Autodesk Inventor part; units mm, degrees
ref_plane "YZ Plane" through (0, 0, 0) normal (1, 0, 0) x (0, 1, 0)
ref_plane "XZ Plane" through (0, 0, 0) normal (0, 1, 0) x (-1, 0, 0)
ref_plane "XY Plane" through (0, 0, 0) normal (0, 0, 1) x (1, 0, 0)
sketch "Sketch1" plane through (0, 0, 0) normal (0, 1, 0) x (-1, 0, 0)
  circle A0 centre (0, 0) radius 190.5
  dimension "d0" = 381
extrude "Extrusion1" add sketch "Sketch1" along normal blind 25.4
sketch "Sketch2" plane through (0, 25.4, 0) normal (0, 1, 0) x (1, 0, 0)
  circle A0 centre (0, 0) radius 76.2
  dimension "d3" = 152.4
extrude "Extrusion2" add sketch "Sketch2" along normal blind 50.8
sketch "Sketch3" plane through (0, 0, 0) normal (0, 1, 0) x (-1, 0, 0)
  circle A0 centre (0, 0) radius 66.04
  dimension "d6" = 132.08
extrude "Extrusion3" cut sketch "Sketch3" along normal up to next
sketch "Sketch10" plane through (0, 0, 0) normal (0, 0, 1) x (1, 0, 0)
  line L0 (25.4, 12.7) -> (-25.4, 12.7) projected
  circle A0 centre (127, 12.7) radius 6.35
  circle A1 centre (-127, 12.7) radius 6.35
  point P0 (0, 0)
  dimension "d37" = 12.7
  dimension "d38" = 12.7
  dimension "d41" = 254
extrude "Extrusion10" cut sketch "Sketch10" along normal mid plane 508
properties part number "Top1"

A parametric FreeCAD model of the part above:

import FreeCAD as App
import Part
import Sketcher
Q = App.Units.Quantity

doc = App.newDocument("Part")
params = doc.addObject("Spreadsheet::Sheet", "Params")
for row, (alias, value) in enumerate([
    ("sketch1_diameter", "15 in"),
    ("pad1_length", "1 in"),
    ("sketch2_diameter", "6 in"),
    ("pad2_length", "2 in"),
    ("sketch3_diameter", "5.2 in"),
    ("sketch4_diameter", "0.5 in"),
    ("pocket2_length", "20 in"),
], start=1):
    params.set(f"A{row}", alias)
    params.set(f"B{row}", "=" + value)
    params.setAlias(f"B{row}", alias)

body = doc.addObject("PartDesign::Body", "Body")

# Sketch on XZ plane
sketch1 = body.newObject("Sketcher::SketchObject", "Sketch")
sketch1.AttachmentSupport = (doc.getObject("XZ_Plane"), [""])
sketch1.MapMode = "FlatFace"
sketch1.addGeometry(Part.Circle(App.Vector(0, 0, 0), App.Vector(0, 0, 1), 190), False)
sketch1.addConstraint([
    Sketcher.Constraint("Coincident", 0, 3, -1, 1),
    Sketcher.Constraint("Diameter", 0, Q("15 in")),
])
sketch1.setExpression("Constraints[1]", "Params.sketch1_diameter")
pad1 = body.newObject("PartDesign::Pad", "Pad")
pad1.Profile = sketch1
pad1.setExpression("Length", "Params.pad1_length")
pad1.Reversed = True

# Sketch on XZ plane
sketch2 = body.newObject("Sketcher::SketchObject", "Sketch001")
sketch2.AttachmentSupport = (doc.getObject("XZ_Plane"), [""])
sketch2.MapMode = "FlatFace"
sketch2.AttachmentOffset = App.Placement(App.Vector(0, 0, -1 * 25.4), App.Rotation())
sketch2.addGeometry(Part.Circle(App.Vector(0, 0, 0), App.Vector(0, 0, 1), 76), False)
sketch2.addConstraint([
    Sketcher.Constraint("Coincident", 0, 3, -1, 1),
    Sketcher.Constraint("Diameter", 0, Q("6 in")),
])
sketch2.setExpression("Constraints[1]", "Params.sketch2_diameter")
pad2 = body.newObject("PartDesign::Pad", "Pad001")
pad2.Profile = sketch2
pad2.setExpression("Length", "Params.pad2_length")
pad2.Reversed = True

# Sketch on XZ plane
sketch3 = body.newObject("Sketcher::SketchObject", "Sketch002")
sketch3.AttachmentSupport = (doc.getObject("XZ_Plane"), [""])
sketch3.MapMode = "FlatFace"
sketch3.addGeometry(Part.Circle(App.Vector(0, 0, 0), App.Vector(0, 0, 1), 66), False)
sketch3.addConstraint([
    Sketcher.Constraint("Coincident", 0, 3, -1, 1),
    Sketcher.Constraint("Diameter", 0, Q("5.2 in")),
])
sketch3.setExpression("Constraints[1]", "Params.sketch3_diameter")
pocket1 = body.newObject("PartDesign::Pocket", "Pocket")
pocket1.Profile = sketch3
pocket1.Type = "UpToFirst"

# Sketch on XY plane
sketch4 = body.newObject("Sketcher::SketchObject", "Sketch003")
sketch4.AttachmentSupport = (doc.getObject("XY_Plane"), [""])
sketch4.MapMode = "FlatFace"
sketch4.addGeometry([
    Part.Circle(App.Vector(127, 13, 0), App.Vector(0, 0, 1), 6),
    Part.Circle(App.Vector(-127, 13, 0), App.Vector(0, 0, 1), 6),
], False)
sketch4.addConstraint([
    Sketcher.Constraint("Equal", 0, 1),
    Sketcher.Constraint("Symmetric", 0, 3, 1, 3, -2),
    Sketcher.Constraint("Diameter", 0, Q("0.5 in")),
    Sketcher.Constraint("DistanceX", 1, 3, 0, 3, Q("10 in")),
    Sketcher.Constraint("DistanceY", -1, 1, 0, 3, Q("0.5 in")),
])
sketch4.setExpression("Constraints[2]", "Params.sketch4_diameter")
pocket2 = body.newObject("PartDesign::Pocket", "Pocket001")
pocket2.Profile = sketch4
pocket2.setExpression("Length", "Params.pocket2_length")
pocket2.Midplane = True

doc.recompute()
